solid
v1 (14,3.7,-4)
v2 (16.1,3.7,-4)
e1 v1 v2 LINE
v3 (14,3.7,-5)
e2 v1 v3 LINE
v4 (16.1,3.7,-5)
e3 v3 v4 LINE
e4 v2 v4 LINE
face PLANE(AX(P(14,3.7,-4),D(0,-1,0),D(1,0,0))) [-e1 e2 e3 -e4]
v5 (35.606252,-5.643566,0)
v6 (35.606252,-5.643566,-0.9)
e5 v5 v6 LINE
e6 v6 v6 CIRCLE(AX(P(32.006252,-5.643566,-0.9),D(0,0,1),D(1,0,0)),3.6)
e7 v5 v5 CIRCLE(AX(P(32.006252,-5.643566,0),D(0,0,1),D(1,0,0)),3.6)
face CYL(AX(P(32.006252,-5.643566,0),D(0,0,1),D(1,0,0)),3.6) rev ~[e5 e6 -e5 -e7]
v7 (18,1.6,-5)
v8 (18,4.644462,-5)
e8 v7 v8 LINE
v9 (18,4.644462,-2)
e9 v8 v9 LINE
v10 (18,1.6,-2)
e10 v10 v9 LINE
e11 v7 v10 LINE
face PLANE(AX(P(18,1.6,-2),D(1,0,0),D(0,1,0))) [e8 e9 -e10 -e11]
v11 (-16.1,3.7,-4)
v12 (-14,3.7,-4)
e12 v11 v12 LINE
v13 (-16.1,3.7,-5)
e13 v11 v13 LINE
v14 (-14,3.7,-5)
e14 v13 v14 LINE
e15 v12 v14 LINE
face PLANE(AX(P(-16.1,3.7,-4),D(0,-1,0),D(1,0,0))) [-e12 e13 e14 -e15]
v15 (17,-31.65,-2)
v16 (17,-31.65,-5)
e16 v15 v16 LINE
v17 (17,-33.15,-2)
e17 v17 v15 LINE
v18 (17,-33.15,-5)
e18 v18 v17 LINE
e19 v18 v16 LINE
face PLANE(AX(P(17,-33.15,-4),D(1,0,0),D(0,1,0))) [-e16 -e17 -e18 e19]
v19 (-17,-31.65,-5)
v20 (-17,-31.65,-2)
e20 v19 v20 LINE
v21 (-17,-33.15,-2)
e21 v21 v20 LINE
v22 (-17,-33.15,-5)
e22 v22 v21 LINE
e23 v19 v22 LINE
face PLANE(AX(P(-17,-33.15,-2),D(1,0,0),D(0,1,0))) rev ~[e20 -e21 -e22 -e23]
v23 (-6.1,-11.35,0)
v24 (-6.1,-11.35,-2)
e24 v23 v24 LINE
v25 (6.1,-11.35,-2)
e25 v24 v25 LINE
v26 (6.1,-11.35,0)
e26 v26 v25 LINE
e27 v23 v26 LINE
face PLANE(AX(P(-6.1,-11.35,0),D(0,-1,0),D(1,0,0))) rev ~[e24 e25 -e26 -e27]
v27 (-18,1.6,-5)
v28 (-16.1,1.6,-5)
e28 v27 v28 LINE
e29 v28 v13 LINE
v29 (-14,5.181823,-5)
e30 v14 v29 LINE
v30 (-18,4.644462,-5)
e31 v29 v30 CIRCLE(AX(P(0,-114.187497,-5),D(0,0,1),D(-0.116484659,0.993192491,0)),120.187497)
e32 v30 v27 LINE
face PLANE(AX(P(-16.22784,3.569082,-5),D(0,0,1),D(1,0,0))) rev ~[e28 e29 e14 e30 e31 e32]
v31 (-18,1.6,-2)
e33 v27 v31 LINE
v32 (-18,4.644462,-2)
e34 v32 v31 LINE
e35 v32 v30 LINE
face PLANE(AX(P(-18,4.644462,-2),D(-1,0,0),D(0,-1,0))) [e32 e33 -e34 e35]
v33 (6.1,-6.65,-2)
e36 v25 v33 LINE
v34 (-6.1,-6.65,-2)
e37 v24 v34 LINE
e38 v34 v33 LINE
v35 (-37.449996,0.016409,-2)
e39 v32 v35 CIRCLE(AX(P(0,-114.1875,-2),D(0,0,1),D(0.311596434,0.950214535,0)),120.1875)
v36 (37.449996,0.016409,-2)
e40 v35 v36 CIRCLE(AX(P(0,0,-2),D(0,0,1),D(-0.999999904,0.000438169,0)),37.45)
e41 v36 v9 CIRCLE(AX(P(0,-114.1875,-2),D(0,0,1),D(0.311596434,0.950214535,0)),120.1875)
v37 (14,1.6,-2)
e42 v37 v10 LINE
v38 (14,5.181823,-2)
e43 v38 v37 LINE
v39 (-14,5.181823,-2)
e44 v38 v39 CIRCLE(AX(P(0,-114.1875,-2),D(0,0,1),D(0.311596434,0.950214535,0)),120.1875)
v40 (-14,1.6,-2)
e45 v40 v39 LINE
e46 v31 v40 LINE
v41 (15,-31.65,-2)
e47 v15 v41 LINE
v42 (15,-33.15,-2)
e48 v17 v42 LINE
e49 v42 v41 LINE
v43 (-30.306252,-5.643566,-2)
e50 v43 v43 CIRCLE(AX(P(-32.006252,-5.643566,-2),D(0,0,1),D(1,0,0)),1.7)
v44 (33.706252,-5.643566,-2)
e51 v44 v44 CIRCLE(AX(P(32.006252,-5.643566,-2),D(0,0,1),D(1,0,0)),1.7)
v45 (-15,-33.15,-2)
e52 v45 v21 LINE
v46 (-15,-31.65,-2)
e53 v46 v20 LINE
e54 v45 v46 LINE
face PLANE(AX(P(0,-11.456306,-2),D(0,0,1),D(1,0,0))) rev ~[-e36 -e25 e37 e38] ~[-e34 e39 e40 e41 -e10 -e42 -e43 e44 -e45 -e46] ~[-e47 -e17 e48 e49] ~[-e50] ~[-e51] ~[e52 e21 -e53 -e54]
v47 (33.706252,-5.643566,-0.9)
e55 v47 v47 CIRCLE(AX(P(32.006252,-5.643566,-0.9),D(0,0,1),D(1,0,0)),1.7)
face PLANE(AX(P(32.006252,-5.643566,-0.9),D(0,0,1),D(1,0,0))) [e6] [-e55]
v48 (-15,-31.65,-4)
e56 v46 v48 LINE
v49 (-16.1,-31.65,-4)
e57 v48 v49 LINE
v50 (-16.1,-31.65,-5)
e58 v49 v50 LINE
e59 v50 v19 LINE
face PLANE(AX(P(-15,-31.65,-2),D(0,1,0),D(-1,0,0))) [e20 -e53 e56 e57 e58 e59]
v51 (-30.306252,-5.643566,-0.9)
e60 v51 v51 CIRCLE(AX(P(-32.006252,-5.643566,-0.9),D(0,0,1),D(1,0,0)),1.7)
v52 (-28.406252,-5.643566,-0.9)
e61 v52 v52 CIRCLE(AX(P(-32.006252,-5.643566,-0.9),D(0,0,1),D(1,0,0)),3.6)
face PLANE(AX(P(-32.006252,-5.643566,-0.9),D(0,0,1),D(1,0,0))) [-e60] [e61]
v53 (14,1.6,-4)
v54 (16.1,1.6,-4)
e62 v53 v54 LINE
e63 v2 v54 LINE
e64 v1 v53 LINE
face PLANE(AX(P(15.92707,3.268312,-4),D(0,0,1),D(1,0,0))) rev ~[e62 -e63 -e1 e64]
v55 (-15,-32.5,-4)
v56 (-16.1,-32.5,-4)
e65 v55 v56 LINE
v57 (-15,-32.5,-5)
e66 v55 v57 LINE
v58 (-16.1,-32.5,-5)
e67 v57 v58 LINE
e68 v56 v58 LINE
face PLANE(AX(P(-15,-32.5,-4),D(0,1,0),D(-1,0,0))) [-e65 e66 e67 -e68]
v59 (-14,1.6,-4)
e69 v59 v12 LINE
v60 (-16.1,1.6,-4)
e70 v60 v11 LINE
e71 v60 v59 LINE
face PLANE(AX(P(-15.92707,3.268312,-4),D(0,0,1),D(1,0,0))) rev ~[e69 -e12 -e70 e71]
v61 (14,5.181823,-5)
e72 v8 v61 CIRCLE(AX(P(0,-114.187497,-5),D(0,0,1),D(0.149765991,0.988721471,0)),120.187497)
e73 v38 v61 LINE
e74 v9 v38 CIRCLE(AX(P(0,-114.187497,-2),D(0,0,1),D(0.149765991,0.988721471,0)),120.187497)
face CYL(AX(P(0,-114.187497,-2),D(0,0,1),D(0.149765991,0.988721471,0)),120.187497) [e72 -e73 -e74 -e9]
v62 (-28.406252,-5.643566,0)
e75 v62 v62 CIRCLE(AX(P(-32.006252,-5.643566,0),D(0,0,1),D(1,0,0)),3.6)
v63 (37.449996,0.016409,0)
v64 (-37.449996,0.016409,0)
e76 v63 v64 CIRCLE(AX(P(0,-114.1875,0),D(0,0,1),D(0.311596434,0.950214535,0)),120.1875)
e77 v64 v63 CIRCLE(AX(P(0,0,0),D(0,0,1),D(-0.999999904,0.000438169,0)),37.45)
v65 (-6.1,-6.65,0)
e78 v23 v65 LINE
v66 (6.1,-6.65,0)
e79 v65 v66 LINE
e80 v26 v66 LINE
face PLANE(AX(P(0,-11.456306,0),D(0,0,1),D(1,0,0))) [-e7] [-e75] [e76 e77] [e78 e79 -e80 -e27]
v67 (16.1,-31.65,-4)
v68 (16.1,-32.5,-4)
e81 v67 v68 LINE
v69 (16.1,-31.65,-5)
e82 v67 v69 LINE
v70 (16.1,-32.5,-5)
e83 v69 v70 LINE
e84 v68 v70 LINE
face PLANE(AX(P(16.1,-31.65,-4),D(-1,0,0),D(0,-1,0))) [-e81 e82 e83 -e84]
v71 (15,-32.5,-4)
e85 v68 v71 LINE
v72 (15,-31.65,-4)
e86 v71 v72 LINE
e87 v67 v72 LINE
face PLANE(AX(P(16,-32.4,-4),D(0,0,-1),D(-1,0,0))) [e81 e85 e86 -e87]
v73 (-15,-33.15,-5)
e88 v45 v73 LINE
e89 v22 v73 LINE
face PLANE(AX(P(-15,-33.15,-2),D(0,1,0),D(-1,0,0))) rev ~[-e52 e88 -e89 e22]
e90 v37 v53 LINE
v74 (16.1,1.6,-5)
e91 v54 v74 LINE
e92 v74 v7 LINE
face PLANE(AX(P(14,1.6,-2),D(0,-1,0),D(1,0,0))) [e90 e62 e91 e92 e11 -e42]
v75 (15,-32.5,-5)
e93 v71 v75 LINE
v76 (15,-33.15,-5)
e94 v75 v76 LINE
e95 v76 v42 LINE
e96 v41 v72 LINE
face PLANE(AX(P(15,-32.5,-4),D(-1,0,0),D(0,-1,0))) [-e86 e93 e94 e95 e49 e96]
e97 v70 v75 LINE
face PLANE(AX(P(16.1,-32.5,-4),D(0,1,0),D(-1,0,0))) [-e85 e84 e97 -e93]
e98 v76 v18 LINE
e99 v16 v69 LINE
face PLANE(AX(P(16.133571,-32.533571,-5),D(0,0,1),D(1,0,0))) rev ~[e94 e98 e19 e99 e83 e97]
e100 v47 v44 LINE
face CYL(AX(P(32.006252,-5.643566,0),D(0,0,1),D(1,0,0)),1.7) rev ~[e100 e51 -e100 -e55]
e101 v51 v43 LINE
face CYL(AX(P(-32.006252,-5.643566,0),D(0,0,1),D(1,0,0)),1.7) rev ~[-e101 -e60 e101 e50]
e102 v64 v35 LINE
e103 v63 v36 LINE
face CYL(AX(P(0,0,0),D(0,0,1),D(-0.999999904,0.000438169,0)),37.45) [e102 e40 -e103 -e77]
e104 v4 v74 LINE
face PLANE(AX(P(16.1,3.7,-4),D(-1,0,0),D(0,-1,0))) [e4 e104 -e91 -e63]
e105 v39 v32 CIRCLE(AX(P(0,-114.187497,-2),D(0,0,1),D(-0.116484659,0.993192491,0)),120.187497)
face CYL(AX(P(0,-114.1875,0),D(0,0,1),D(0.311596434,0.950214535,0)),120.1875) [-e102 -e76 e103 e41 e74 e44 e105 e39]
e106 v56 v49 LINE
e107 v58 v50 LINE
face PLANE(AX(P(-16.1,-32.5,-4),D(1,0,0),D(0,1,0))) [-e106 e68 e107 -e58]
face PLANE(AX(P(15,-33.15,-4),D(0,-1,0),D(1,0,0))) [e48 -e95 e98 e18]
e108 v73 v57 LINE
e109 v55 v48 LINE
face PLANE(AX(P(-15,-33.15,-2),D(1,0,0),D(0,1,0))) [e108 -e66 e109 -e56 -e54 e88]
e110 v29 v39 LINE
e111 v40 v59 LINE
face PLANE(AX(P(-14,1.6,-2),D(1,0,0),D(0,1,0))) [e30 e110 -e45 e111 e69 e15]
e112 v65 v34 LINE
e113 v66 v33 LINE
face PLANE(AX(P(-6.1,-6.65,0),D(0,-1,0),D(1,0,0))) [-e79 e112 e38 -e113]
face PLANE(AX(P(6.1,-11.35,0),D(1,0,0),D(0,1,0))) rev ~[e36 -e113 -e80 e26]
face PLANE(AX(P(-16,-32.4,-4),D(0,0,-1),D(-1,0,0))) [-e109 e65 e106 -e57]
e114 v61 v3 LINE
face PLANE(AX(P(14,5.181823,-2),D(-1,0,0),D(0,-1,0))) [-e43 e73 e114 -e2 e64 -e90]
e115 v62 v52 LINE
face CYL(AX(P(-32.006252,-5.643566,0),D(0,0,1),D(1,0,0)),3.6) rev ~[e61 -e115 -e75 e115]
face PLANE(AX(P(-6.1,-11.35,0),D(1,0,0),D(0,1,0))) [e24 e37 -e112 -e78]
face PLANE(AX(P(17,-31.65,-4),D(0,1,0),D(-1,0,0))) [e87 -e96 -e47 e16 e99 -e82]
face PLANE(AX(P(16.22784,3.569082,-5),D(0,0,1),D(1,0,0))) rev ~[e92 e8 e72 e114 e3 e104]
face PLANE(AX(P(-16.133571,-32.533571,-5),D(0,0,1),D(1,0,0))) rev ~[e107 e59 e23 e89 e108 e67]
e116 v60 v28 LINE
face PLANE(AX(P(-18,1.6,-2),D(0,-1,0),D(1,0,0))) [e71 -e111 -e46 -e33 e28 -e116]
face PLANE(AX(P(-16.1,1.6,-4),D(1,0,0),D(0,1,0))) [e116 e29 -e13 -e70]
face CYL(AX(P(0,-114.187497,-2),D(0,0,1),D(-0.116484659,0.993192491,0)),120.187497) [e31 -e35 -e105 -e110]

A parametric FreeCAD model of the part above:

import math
import FreeCAD as App
import Part
import Sketcher

V = App.Vector


def add_polygon(sketch, points):
    """Adds a closed chain of lines whose ends are joined by coincident constraints."""
    first, n = sketch.GeometryCount, len(points)
    for a, b in zip(points, points[1:] + points[:1]):
        sketch.addGeometry(Part.LineSegment(App.Vector(*a, 0), App.Vector(*b, 0)), False)
    for i in range(n):
        sketch.addConstraint(Sketcher.Constraint("Coincident", first + i, 2, first + (i + 1) % n, 1))

doc = App.newDocument("Part")
body = doc.addObject("PartDesign::Body", "Body")

# Sketch on XY plane
sketch1 = doc.addObject("Sketcher::SketchObject", "Sketch")
body.addObject(sketch1)
sketch1.AttachmentSupport = (doc.XY_Plane, [""])
sketch1.MapMode = "FlatFace"
sketch1.addGeometry(Part.ArcOfCircle(Part.Circle(V(0, 0, 0), V(0, 0, 1), 37.45), math.radians(179.974895), math.radians(360.025105)), False)  # 0
sketch1.addGeometry(Part.ArcOfCircle(Part.Circle(V(0, -114.1875, 0), V(0, 0, 1), 120.1875), math.radians(71.844535), math.radians(108.155465)), False)  # 1
add_polygon(sketch1, [(6.1, -11.35), (-6.1, -11.35), (-6.1, -6.65), (6.1, -6.65)])  # lines 2-5
sketch1.addGeometry(Part.Circle(V(-32.006252, -5.643566, 0), V(0, 0, 1), 1.7), False)  # 6
sketch1.addGeometry(Part.Circle(V(32.006252, -5.643566, 0), V(0, 0, 1), 1.7), False)  # 7
sketch1.addConstraint([
    Sketcher.Constraint("Coincident", 0, 1, 1, 2),
    Sketcher.Constraint("Coincident", 1, 1, 0, 2),
    Sketcher.Constraint("Horizontal", 2),
    Sketcher.Constraint("Vertical", 3),
    Sketcher.Constraint("Horizontal", 4),
    Sketcher.Constraint("Vertical", 5),
    Sketcher.Constraint("Coincident", 0, 3, -1, 1),
    Sketcher.Constraint("Equal", 6, 7),
    Sketcher.Constraint("Symmetric", 6, 3, 7, 3, -2),
    Sketcher.Constraint("PointOnObject", 1, 3, -2),
    Sketcher.Constraint("Diameter", 6, 3.4),
    Sketcher.Constraint("Radius", 0, 37.45),
    Sketcher.Constraint("DistanceX", 2, 2, 2, 1, 12.2),
    Sketcher.Constraint("DistanceY", 3, 1, 3, 2, 4.7),
    Sketcher.Constraint("DistanceX", 2, 2, -1, 1, 6.1),
    Sketcher.Constraint("Radius", 1, 120.1875),
    Sketcher.Constraint("DistanceY", 2, 2, -1, 1, 11.35),
    Sketcher.Constraint("DistanceY", 1, 3, -1, 1, 114.1875),
    Sketcher.Constraint("DistanceX", 6, 3, -1, 1, 32.006252),
    Sketcher.Constraint("DistanceY", 6, 3, -1, 1, 5.643566),
])
pad1 = doc.addObject("PartDesign::Pad", "Pad")
body.addObject(pad1)
pad1.Profile = sketch1
pad1.Length = 2
pad1.Reversed = True

# Sketch on XY plane
sketch2 = doc.addObject("Sketcher::SketchObject", "Sketch001")
body.addObject(sketch2)
sketch2.AttachmentSupport = (doc.XY_Plane, [""])
sketch2.MapMode = "FlatFace"
sketch2.addGeometry([
    Part.Circle(V(-32.006252, -5.643566, 0), V(0, 0, 1), 3.6),
    Part.Circle(V(32.006252, -5.643566, 0), V(0, 0, 1), 3.6),
], False)
sketch2.addConstraint([
    Sketcher.Constraint("Equal", 0, 1),
    Sketcher.Constraint("Symmetric", 0, 3, 1, 3, -2),
    Sketcher.Constraint("Diameter", 0, 7.2),
    Sketcher.Constraint("DistanceX", 0, 3, -1, 1, 32.006252),
    Sketcher.Constraint("DistanceY", 0, 3, -1, 1, 5.643566),
])
pocket1 = doc.addObject("PartDesign::Pocket", "Pocket")
body.addObject(pocket1)
pocket1.Profile = sketch2
pocket1.Length = 0.9

# Sketch on XY plane
sketch3 = doc.addObject("Sketcher::SketchObject", "Sketch002")
body.addObject(sketch3)
sketch3.AttachmentSupport = (doc.XY_Plane, [""])
sketch3.MapMode = "FlatFace"
sketch3.AttachmentOffset = App.Placement(V(0, 0, -2), App.Rotation())
add_polygon(sketch3, [(17, -31.65), (17, -33.15), (15, -33.15), (15, -31.65)])  # lines 0-3
add_polygon(sketch3, [(-15, -31.65), (-15, -33.15), (-17, -33.15), (-17, -31.65)])  # lines 4-7
sketch3.addGeometry(Part.LineSegment(V(18, 4.644462, 0), V(18, 1.6, 0)), False)  # 8
sketch3.addGeometry(Part.LineSegment(V(18, 1.6, 0), V(14, 1.6, 0)), False)  # 9
sketch3.addGeometry(Part.LineSegment(V(14, 1.6, 0), V(14, 5.181823, 0)), False)  # 10
sketch3.addGeometry(Part.ArcOfCircle(Part.Circle(V(0, -114.187497, 0), V(0, 0, 1), 120.187497), math.radians(81.386634), math.radians(83.310735)), False)  # 11
sketch3.addGeometry(Part.LineSegment(V(-18, 1.6, 0), V(-18, 4.644462, 0)), False)  # 12
sketch3.addGeometry(Part.ArcOfCircle(Part.Circle(V(0, -114.187497, 0), V(0, 0, 1), 120.187497), math.radians(96.689265), math.radians(98.613366)), False)  # 13
sketch3.addGeometry(Part.LineSegment(V(-14, 5.181823, 0), V(-14, 1.6, 0)), False)  # 14
sketch3.addGeometry(Part.LineSegment(V(-14, 1.6, 0), V(-18, 1.6, 0)), False)  # 15
sketch3.addConstraint([
    Sketcher.Constraint("Coincident", 8, 2, 9, 1),
    Sketcher.Constraint("Coincident", 9, 2, 10, 1),
    Sketcher.Constraint("Coincident", 10, 2, 11, 2),
    Sketcher.Constraint("Coincident", 11, 1, 8, 1),
    Sketcher.Constraint("Coincident", 12, 2, 13, 2),
    Sketcher.Constraint("Coincident", 13, 1, 14, 1),
    Sketcher.Constraint("Coincident", 14, 2, 15, 1),
    Sketcher.Constraint("Coincident", 15, 2, 12, 1),
    Sketcher.Constraint("Vertical", 0),
    Sketcher.Constraint("Horizontal", 1),
    Sketcher.Constraint("Vertical", 2),
    Sketcher.Constraint("Horizontal", 3),
    Sketcher.Constraint("Vertical", 4),
    Sketcher.Constraint("Horizontal", 5),
    Sketcher.Constraint("Vertical", 6),
    Sketcher.Constraint("Horizontal", 7),
    Sketcher.Constraint("Vertical", 8),
    Sketcher.Constraint("Horizontal", 9),
    Sketcher.Constraint("Vertical", 10),
    Sketcher.Constraint("Vertical", 12),
    Sketcher.Constraint("Vertical", 14),
    Sketcher.Constraint("Horizontal", 15),
    Sketcher.Constraint("Coincident", 13, 3, 11, 3),
    Sketcher.Constraint("Equal", 11, 13),
    Sketcher.Constraint("Symmetric", 1, 2, 4, 2, -2),
    Sketcher.Constraint("Symmetric", 3, 2, 6, 2, -2),
    Sketcher.Constraint("Symmetric", 11, 1, 12, 2, -2),
    Sketcher.Constraint("Symmetric", 9, 2, 14, 2, -2),
    Sketcher.Constraint("DistanceX", 1, 2, 1, 1, 2.0),
    Sketcher.Constraint("DistanceX", 9, 2, 9, 1, 4.0),
    Sketcher.Constraint("DistanceY", 0, 2, 0, 1, 1.5),
    Sketcher.Constraint("DistanceX", -1, 1, 0, 2, 17.0),
    Sketcher.Constraint("DistanceX", -1, 1, 8, 2, 18.0),
    Sketcher.Constraint("DistanceY", -1, 1, 8, 2, 1.6),
    Sketcher.Constraint("DistanceY", 0, 2, -1, 1, 33.15),
    Sketcher.Constraint("Radius", 11, 120.187497),
    Sketcher.Constraint("DistanceY", 8, 2, 8, 1, 3.044462),
])
pad2 = doc.addObject("PartDesign::Pad", "Pad001")
body.addObject(pad2)
pad2.Profile = sketch3
pad2.Length = 2
pad2.Reversed = True

# Sketch on XY plane
sketch4 = doc.addObject("Sketcher::SketchObject", "Sketch003")
body.addObject(sketch4)
sketch4.AttachmentSupport = (doc.XY_Plane, [""])
sketch4.MapMode = "FlatFace"
sketch4.AttachmentOffset = App.Placement(V(0, 0, -4), App.Rotation())
add_polygon(sketch4, [(15, -32.5), (16.1, -32.5), (16.1, -31.65), (17, -31.65), (17, -33.15), (15, -33.15)])  # lines 0-5
add_polygon(sketch4, [(-16.1, -31.65), (-16.1, -32.5), (-15, -32.5), (-15, -33.15), (-17, -33.15), (-17, -31.65)])  # lines 6-11
sketch4.addGeometry(Part.LineSegment(V(18, 4.644462, 0), V(18, 1.6, 0)), False)  # 12
sketch4.addGeometry(Part.LineSegment(V(18, 1.6, 0), V(16.1, 1.6, 0)), False)  # 13
sketch4.addGeometry(Part.LineSegment(V(16.1, 1.6, 0), V(16.1, 3.7, 0)), False)  # 14
sketch4.addGeometry(Part.LineSegment(V(16.1, 3.7, 0), V(14, 3.7, 0)), False)  # 15
sketch4.addGeometry(Part.LineSegment(V(14, 3.7, 0), V(14, 5.181823, 0)), False)  # 16
sketch4.addGeometry(Part.ArcOfCircle(Part.Circle(V(0, -114.187497, 0), V(0, 0, 1), 120.187497), math.radians(81.386634), math.radians(83.310735)), False)  # 17
sketch4.addGeometry(Part.LineSegment(V(-14, 5.181823, 0), V(-14, 3.7, 0)), False)  # 18
sketch4.addGeometry(Part.LineSegment(V(-14, 3.7, 0), V(-16.1, 3.7, 0)), False)  # 19
sketch4.addGeometry(Part.LineSegment(V(-16.1, 3.7, 0), V(-16.1, 1.6, 0)), False)  # 20
sketch4.addGeometry(Part.LineSegment(V(-16.1, 1.6, 0), V(-18, 1.6, 0)), False)  # 21
sketch4.addGeometry(Part.LineSegment(V(-18, 1.6, 0), V(-18, 4.644462, 0)), False)  # 22
sketch4.addGeometry(Part.ArcOfCircle(Part.Circle(V(0, -114.187497, 0), V(0, 0, 1), 120.187497), math.radians(96.689265), math.radians(98.613366)), False)  # 23
sketch4.addConstraint([
    Sketcher.Constraint("Coincident", 12, 2, 13, 1),
    Sketcher.Constraint("Coincident", 13, 2, 14, 1),
    Sketcher.Constraint("Coincident", 14, 2, 15, 1),
    Sketcher.Constraint("Coincident", 15, 2, 16, 1),
    Sketcher.Constraint("Coincident", 16, 2, 17, 2),
    Sketcher.Constraint("Coincident", 17, 1, 12, 1),
    Sketcher.Constraint("Coincident", 18, 2, 19, 1),
    Sketcher.Constraint("Coincident", 19, 2, 20, 1),
    Sketcher.Constraint("Coincident", 20, 2, 21, 1),
    Sketcher.Constraint("Coincident", 21, 2, 22, 1),
    Sketcher.Constraint("Coincident", 22, 2, 23, 2),
    Sketcher.Constraint("Coincident", 23, 1, 18, 1),
    Sketcher.Constraint("Horizontal", 0),
    Sketcher.Constraint("Vertical", 1),
    Sketcher.Constraint("Horizontal", 2),
    Sketcher.Constraint("Vertical", 3),
    Sketcher.Constraint("Horizontal", 4),
    Sketcher.Constraint("Vertical", 5),
    Sketcher.Constraint("Vertical", 6),
    Sketcher.Constraint("Horizontal", 7),
    Sketcher.Constraint("Vertical", 8),
    Sketcher.Constraint("Horizontal", 9),
    Sketcher.Constraint("Vertical", 10),
    Sketcher.Constraint("Horizontal", 11),
    Sketcher.Constraint("Vertical", 12),
    Sketcher.Constraint("Horizontal", 13),
    Sketcher.Constraint("Vertical", 14),
    Sketcher.Constraint("Horizontal", 15),
    Sketcher.Constraint("Vertical", 16),
    Sketcher.Constraint("Vertical", 18),
    Sketcher.Constraint("Horizontal", 19),
    Sketcher.Constraint("Vertical", 20),
    Sketcher.Constraint("Horizontal", 21),
    Sketcher.Constraint("Vertical", 22),
    Sketcher.Constraint("Coincident", 23, 3, 17, 3),
    Sketcher.Constraint("Equal", 17, 23),
    Sketcher.Constraint("Symmetric", 0, 2, 6, 2, -2),
    Sketcher.Constraint("Symmetric", 4, 2, 8, 2, -2),
    Sketcher.Constraint("Symmetric", 2, 2, 10, 2, -2),
    Sketcher.Constraint("Symmetric", 15, 2, 18, 2, -2),
    Sketcher.Constraint("Symmetric", 13, 2, 20, 2, -2),
    Sketcher.Constraint("Symmetric", 17, 1, 22, 2, -2),
    Sketcher.Constraint("Vertical", 1, 2, 13, 2),
    Sketcher.Constraint("Equal", 19, 14),
    Sketcher.Constraint("DistanceX", 4, 2, 4, 1, 2.0),
    Sketcher.Constraint("DistanceX", 0, 1, 0, 2, 1.1),
    Sketcher.Constraint("DistanceX", 13, 2, 13, 1, 1.9),
    Sketcher.Constraint("DistanceX", 15, 2, 15, 1, 2.1),
    Sketcher.Constraint("DistanceY", 3, 2, 3, 1, 1.5),
    Sketcher.Constraint("DistanceX", -1, 1, 2, 2, 17.0),
    Sketcher.Constraint("DistanceY", 1, 1, 1, 2, 0.85),
    Sketcher.Constraint("DistanceY", 0, 2, -1, 1, 32.5),
    Sketcher.Constraint("DistanceY", -1, 1, 12, 2, 1.6),
    Sketcher.Constraint("Radius", 17, 120.187497),
    Sketcher.Constraint("DistanceY", 12, 2, 12, 1, 3.044462),
])
pad3 = doc.addObject("PartDesign::Pad", "Pad002")
body.addObject(pad3)
pad3.Profile = sketch4
pad3.Length = 1
pad3.Reversed = True

doc.recompute()
